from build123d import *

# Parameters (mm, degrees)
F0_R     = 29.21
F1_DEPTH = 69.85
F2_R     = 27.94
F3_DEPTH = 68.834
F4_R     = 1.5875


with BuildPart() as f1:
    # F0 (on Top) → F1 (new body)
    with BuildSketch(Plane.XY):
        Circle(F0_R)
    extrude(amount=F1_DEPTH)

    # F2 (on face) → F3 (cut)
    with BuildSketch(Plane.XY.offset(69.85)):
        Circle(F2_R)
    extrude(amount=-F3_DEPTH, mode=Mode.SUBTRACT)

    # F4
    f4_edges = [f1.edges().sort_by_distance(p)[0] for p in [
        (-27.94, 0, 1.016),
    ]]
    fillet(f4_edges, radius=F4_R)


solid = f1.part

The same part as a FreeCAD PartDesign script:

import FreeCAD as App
import Part
import Sketcher
Q = App.Units.Quantity


def edges_at(feature, points):
    """Names of the edges that pass closest to the given points."""
    edges = feature.Shape.Edges
    near = lambda p: min(range(len(edges)), key=lambda i: edges[i].distToShape(Part.Vertex(*p))[0])
    return sorted({f"Edge{near(p) + 1}" for p in points})

doc = App.newDocument("Part")
params = doc.addObject("Spreadsheet::Sheet", "Params")
for row, (alias, value) in enumerate([
    ("sketch1_diameter", "2.3 in"),
    ("pad1_length", "2.75 in"),
    ("sketch2_diameter", "2.2 in"),
    ("pocket1_length", "2.71 in"),
    ("fillet_radius", "0.0625 in"),
], start=1):
    params.set(f"A{row}", alias)
    params.set(f"B{row}", "=" + value)
    params.setAlias(f"B{row}", alias)

body = doc.addObject("PartDesign::Body", "Body")

sketch1 = body.newObject("Sketcher::SketchObject", "Sketch")
sketch1.AttachmentSupport = (doc.getObject("XY_Plane"), [""])
sketch1.MapMode = "FlatFace"
sketch1.addGeometry(Part.Circle(App.Vector(0, 0, 0), App.Vector(0, 0, 1), 29), False)
sketch1.addConstraint([
    Sketcher.Constraint("Coincident", 0, 3, -1, 1),
    Sketcher.Constraint("Diameter", 0, Q("2.3 in")),
])
sketch1.setExpression("Constraints[1]", "Params.sketch1_diameter")
pad1 = body.newObject("PartDesign::Pad", "Pad")
pad1.Profile = sketch1
pad1.setExpression("Length", "Params.pad1_length")

sketch2 = body.newObject("Sketcher::SketchObject", "Sketch001")
sketch2.AttachmentSupport = (doc.getObject("XY_Plane"), [""])
sketch2.MapMode = "FlatFace"
sketch2.AttachmentOffset = App.Placement(App.Vector(0, 0, 2.75 * 25.4), App.Rotation())
sketch2.addGeometry(Part.Circle(App.Vector(0, 0, 0), App.Vector(0, 0, 1), 28), False)
sketch2.addConstraint([
    Sketcher.Constraint("Coincident", 0, 3, -1, 1),
    Sketcher.Constraint("Diameter", 0, Q("2.2 in")),
])
sketch2.setExpression("Constraints[1]", "Params.sketch2_diameter")
pocket1 = body.newObject("PartDesign::Pocket", "Pocket")
pocket1.Profile = sketch2
pocket1.setExpression("Length", "Params.pocket1_length")
doc.recompute()

fillet = body.newObject("PartDesign::Fillet", "Fillet")
fillet.Base = (pocket1, edges_at(pocket1, [(-27.94, 0, 1.016)]))
fillet.setExpression("Radius", "Params.fillet_radius")

doc.recompute()
